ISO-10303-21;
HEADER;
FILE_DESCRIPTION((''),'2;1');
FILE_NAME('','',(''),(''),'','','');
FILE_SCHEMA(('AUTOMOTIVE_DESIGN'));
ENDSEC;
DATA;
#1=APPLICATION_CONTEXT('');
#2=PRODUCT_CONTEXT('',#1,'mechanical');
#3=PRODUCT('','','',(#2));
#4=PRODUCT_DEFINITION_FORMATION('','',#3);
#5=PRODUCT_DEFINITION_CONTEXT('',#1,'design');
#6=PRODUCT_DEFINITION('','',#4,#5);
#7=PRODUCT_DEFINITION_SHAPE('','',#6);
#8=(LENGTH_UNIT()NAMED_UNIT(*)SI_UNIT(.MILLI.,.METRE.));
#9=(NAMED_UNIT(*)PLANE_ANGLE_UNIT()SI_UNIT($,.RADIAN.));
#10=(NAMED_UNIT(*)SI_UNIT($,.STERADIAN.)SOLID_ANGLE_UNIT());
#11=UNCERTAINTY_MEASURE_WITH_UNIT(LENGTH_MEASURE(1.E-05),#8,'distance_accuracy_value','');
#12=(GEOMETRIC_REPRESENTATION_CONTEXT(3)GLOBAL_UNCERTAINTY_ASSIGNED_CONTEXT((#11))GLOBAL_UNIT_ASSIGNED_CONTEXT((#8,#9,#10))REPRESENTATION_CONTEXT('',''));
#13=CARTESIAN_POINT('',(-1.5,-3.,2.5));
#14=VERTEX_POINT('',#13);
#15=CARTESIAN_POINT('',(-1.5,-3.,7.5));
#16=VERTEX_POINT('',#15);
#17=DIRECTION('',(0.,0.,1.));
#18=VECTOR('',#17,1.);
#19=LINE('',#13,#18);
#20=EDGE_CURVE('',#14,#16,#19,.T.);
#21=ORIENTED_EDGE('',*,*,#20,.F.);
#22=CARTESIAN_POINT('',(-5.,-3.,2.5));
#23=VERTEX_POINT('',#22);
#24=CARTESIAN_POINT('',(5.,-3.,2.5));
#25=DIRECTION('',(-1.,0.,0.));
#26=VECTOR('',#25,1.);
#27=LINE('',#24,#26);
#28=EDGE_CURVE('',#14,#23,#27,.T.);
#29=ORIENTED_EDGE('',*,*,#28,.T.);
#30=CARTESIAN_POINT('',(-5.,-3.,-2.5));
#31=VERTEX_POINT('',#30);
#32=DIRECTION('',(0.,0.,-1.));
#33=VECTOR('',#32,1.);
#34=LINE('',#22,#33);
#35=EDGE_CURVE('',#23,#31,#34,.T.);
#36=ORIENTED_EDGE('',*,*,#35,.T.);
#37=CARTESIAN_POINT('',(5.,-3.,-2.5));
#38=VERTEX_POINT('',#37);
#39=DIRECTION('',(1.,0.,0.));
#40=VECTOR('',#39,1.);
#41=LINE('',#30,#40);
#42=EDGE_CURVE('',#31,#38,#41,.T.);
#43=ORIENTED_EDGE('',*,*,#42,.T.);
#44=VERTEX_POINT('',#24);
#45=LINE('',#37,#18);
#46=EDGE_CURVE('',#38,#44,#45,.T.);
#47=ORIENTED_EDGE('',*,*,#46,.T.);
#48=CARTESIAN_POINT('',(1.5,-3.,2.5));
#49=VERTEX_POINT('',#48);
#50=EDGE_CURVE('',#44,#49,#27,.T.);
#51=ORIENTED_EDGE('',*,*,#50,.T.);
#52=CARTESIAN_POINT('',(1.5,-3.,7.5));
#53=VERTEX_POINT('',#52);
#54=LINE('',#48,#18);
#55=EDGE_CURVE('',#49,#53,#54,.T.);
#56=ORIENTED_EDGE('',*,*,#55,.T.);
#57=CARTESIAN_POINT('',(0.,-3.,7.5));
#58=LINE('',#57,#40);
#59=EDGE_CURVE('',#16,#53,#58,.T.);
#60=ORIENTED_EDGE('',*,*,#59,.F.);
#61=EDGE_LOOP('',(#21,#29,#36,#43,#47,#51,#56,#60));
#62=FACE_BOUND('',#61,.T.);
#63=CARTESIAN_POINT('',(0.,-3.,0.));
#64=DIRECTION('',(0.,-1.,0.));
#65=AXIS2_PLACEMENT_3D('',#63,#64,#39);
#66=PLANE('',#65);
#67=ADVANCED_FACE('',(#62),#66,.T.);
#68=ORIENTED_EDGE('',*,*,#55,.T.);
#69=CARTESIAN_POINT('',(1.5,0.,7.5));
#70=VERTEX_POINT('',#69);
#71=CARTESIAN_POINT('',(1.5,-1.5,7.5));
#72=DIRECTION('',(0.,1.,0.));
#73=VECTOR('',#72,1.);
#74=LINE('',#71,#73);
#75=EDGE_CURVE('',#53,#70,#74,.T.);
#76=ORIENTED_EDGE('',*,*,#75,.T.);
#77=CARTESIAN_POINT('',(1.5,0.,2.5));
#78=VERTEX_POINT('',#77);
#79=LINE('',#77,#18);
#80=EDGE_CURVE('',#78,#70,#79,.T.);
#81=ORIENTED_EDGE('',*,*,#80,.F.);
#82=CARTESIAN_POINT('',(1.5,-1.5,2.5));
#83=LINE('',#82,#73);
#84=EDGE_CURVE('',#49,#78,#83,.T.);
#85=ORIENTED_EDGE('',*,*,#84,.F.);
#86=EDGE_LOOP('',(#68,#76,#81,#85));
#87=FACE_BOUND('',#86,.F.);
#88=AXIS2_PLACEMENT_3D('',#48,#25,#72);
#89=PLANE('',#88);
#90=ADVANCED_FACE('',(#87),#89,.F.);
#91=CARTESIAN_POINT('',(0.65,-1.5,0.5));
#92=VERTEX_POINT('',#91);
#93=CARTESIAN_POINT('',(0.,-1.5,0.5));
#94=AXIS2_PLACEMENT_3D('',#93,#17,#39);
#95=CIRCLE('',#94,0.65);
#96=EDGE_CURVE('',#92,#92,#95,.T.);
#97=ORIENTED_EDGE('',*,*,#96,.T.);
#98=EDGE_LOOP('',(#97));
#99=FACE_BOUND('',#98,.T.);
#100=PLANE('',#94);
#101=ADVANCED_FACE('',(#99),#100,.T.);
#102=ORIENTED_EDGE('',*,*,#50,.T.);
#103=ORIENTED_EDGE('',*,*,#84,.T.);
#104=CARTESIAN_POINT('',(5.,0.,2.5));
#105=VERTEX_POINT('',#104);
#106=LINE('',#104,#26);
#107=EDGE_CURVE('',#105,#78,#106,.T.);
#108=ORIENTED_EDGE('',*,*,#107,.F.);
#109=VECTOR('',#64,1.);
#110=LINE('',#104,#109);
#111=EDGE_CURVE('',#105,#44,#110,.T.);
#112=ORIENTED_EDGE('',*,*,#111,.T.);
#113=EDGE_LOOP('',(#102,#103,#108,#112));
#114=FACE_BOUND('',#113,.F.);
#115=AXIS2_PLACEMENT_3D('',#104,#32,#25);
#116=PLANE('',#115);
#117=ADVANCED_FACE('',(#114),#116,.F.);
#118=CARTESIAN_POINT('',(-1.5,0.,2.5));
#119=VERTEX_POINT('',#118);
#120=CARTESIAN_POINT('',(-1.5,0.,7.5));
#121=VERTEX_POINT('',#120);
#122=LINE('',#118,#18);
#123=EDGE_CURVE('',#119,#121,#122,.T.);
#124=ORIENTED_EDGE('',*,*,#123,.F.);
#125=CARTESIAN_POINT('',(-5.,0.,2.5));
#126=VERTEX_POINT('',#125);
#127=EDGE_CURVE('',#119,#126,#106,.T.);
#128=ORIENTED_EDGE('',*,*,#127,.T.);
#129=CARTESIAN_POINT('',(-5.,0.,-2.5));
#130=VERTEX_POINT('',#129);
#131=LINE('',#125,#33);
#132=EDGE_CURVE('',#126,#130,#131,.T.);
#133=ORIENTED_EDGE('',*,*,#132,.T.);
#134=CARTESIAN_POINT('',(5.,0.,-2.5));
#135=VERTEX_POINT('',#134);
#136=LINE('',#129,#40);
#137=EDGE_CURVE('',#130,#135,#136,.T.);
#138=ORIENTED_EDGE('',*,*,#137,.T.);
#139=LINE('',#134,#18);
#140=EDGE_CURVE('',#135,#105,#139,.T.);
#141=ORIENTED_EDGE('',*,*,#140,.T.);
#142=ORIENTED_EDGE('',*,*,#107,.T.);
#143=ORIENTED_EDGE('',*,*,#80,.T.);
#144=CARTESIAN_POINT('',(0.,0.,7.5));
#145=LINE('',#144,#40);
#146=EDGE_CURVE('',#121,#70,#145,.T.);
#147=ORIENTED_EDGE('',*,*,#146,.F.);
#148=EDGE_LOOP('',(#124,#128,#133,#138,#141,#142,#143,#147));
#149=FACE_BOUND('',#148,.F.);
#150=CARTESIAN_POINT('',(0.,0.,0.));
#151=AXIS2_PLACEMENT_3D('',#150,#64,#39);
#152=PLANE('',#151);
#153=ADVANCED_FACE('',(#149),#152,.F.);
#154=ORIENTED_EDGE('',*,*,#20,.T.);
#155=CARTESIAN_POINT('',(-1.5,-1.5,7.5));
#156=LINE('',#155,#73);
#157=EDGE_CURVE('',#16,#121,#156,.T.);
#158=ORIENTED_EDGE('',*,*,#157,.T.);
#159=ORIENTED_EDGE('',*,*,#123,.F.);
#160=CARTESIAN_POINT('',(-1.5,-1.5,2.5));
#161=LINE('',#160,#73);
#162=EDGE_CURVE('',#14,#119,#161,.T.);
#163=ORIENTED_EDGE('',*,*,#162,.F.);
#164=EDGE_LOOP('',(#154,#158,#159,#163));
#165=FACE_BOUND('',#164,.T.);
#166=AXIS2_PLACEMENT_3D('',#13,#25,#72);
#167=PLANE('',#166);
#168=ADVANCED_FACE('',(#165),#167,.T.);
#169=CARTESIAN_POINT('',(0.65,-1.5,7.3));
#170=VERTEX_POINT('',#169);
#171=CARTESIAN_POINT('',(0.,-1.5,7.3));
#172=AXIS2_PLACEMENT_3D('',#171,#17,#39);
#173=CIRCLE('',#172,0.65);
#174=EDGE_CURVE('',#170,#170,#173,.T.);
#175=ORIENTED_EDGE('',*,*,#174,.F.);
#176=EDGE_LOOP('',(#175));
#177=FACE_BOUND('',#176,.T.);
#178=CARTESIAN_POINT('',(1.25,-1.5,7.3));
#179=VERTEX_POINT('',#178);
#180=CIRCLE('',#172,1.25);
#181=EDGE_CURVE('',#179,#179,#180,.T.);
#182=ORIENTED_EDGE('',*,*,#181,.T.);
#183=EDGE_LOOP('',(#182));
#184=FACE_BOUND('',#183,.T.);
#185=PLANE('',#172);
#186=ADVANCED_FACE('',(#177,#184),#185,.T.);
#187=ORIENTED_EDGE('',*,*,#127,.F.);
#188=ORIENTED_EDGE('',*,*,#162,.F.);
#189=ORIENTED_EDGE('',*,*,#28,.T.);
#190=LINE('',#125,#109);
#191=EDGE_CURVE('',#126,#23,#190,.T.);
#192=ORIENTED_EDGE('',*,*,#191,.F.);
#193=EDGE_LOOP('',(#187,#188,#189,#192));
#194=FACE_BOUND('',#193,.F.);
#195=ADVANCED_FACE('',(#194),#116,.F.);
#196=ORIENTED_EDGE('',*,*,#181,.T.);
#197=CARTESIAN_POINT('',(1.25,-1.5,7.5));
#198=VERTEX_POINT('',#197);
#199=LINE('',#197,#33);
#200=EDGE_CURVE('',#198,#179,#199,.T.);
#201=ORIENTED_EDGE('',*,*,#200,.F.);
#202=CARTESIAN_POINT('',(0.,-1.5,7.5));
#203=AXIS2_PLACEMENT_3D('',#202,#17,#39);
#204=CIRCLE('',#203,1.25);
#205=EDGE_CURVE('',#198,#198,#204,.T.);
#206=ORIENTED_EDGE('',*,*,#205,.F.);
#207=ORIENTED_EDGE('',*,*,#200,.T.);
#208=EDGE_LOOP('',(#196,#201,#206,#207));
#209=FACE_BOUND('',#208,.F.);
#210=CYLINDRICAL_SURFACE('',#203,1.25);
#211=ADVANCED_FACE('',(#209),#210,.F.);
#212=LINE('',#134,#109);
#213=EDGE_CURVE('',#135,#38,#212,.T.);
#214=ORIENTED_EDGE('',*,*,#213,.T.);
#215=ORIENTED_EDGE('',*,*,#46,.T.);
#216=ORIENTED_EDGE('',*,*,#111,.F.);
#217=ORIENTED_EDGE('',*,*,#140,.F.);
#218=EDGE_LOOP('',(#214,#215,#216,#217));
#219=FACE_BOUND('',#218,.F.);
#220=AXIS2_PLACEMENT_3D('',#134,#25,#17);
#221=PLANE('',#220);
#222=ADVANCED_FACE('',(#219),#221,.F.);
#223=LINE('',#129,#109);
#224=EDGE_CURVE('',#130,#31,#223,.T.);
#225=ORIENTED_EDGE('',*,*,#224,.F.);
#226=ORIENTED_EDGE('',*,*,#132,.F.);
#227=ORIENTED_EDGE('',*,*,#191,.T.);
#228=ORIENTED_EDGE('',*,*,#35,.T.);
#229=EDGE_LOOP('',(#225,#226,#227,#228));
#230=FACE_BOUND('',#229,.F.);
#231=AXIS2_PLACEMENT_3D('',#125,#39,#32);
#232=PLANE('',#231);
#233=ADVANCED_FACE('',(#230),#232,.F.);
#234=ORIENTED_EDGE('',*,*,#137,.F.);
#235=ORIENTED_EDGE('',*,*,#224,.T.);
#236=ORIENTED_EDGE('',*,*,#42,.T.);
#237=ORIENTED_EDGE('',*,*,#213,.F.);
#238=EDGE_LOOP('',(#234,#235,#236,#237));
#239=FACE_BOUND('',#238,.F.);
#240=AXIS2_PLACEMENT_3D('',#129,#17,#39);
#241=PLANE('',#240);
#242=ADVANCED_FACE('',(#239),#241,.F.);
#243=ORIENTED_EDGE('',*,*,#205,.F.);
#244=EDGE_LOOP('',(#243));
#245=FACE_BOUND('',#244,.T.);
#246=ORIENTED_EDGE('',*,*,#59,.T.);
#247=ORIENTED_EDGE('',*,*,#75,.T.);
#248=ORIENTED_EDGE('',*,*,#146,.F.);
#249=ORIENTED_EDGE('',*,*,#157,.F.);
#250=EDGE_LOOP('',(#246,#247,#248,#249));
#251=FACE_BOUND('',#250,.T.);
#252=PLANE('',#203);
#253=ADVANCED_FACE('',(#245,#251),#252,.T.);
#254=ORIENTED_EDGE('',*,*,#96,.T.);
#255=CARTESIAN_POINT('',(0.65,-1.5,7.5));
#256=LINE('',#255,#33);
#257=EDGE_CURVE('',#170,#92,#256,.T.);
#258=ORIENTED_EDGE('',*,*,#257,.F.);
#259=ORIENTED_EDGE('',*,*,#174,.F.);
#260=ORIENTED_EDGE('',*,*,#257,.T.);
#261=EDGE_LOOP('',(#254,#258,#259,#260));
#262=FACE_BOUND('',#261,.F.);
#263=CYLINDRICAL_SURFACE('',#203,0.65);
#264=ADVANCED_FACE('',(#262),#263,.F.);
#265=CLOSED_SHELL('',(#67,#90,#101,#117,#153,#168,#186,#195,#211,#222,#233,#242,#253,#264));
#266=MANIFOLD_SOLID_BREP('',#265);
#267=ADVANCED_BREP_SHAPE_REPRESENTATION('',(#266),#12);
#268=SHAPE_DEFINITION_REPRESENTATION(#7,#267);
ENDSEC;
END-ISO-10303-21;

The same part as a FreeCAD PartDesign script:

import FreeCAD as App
import Part
import Sketcher


def add_polygon(sketch, points):
    """Adds a closed chain of lines whose ends are joined by coincident constraints."""
    first, n = sketch.GeometryCount, len(points)
    for a, b in zip(points, points[1:] + points[:1]):
        sketch.addGeometry(Part.LineSegment(App.Vector(*a, 0), App.Vector(*b, 0)), False)
    for i in range(n):
        sketch.addConstraint(Sketcher.Constraint("Coincident", first + i, 2, first + (i + 1) % n, 1))

doc = App.newDocument("Part")
body = doc.addObject("PartDesign::Body", "Body")

# Sketch on XZ plane
sketch1 = body.newObject("Sketcher::SketchObject", "Sketch")
sketch1.AttachmentSupport = (doc.getObject("XZ_Plane"), [""])
sketch1.MapMode = "FlatFace"
add_polygon(sketch1, [(-5, -2), (5, -2), (5, 2), (-5, 2)])  # lines 0-3
sketch1.addConstraint(Sketcher.Constraint("Horizontal", 0))
sketch1.addConstraint(Sketcher.Constraint("Vertical", 1))
sketch1.addConstraint(Sketcher.Constraint("Horizontal", 2))
sketch1.addConstraint(Sketcher.Constraint("Vertical", 3))
sketch1.addConstraint(Sketcher.Constraint("Symmetric", 0, 2, 2, 2, -1, 1))
sketch1.addConstraint(Sketcher.Constraint("DistanceX", 0, 1, 0, 2, 10.0))
sketch1.addConstraint(Sketcher.Constraint("DistanceY", 1, 1, 1, 2, 5.0))
pad1 = body.newObject("PartDesign::Pad", "Pad")
pad1.Profile = sketch1
pad1.Length = 3

# Sketch on XY plane
sketch2 = body.newObject("Sketcher::SketchObject", "Sketch001")
sketch2.AttachmentSupport = (doc.getObject("XY_Plane"), [""])
sketch2.MapMode = "FlatFace"
sketch2.AttachmentOffset = App.Placement(App.Vector(0, 0, 2.5), App.Rotation())
add_polygon(sketch2, [(-1.5, 0), (-1.5, -3), (1.5, -3), (1.5, 0)])  # lines 0-3
sketch2.addConstraint(Sketcher.Constraint("Vertical", 0))
sketch2.addConstraint(Sketcher.Constraint("Horizontal", 1))
sketch2.addConstraint(Sketcher.Constraint("Vertical", 2))
sketch2.addConstraint(Sketcher.Constraint("Horizontal", 3))
sketch2.addConstraint(Sketcher.Constraint("Symmetric", 2, 2, 3, 2, -1, 1))
sketch2.addConstraint(Sketcher.Constraint("Equal", 3, 0))
sketch2.addConstraint(Sketcher.Constraint("DistanceX", 1, 1, 1, 2, 3.0))
pad2 = body.newObject("PartDesign::Pad", "Pad001")
pad2.Profile = sketch2
pad2.Length = 5

# Sketch on XY plane
sketch3 = body.newObject("Sketcher::SketchObject", "Sketch002")
sketch3.AttachmentSupport = (doc.getObject("XY_Plane"), [""])
sketch3.MapMode = "FlatFace"
sketch3.AttachmentOffset = App.Placement(App.Vector(0, 0, 7.5), App.Rotation())
sketch3.addGeometry(Part.Circle(App.Vector(0, -1.5, 0), App.Vector(0, 0, 1), 0.7), False)
sketch3.addConstraint(Sketcher.Constraint("PointOnObject", 0, 3, -2))
sketch3.addConstraint(Sketcher.Constraint("Diameter", 0, 1.3))
sketch3.addConstraint(Sketcher.Constraint("DistanceY", 0, 3, -1, 1, 1.5))
pocket1 = body.newObject("PartDesign::Pocket", "Pocket")
pocket1.Profile = sketch3
pocket1.Length = 7

# Sketch on XY plane
sketch4 = body.newObject("Sketcher::SketchObject", "Sketch003")
sketch4.AttachmentSupport = (doc.getObject("XY_Plane"), [""])
sketch4.MapMode = "FlatFace"
sketch4.AttachmentOffset = App.Placement(App.Vector(0, 0, 7.5), App.Rotation())
sketch4.addGeometry(Part.Circle(App.Vector(0, -1.5, 0), App.Vector(0, 0, 1), 1.2), False)
sketch4.addConstraint(Sketcher.Constraint("PointOnObject", 0, 3, -2))
sketch4.addConstraint(Sketcher.Constraint("Diameter", 0, 2.5))
sketch4.addConstraint(Sketcher.Constraint("DistanceY", 0, 3, -1, 1, 1.5))
pocket2 = body.newObject("PartDesign::Pocket", "Pocket001")
pocket2.Profile = sketch4
pocket2.Length = 0.2

doc.recompute()
